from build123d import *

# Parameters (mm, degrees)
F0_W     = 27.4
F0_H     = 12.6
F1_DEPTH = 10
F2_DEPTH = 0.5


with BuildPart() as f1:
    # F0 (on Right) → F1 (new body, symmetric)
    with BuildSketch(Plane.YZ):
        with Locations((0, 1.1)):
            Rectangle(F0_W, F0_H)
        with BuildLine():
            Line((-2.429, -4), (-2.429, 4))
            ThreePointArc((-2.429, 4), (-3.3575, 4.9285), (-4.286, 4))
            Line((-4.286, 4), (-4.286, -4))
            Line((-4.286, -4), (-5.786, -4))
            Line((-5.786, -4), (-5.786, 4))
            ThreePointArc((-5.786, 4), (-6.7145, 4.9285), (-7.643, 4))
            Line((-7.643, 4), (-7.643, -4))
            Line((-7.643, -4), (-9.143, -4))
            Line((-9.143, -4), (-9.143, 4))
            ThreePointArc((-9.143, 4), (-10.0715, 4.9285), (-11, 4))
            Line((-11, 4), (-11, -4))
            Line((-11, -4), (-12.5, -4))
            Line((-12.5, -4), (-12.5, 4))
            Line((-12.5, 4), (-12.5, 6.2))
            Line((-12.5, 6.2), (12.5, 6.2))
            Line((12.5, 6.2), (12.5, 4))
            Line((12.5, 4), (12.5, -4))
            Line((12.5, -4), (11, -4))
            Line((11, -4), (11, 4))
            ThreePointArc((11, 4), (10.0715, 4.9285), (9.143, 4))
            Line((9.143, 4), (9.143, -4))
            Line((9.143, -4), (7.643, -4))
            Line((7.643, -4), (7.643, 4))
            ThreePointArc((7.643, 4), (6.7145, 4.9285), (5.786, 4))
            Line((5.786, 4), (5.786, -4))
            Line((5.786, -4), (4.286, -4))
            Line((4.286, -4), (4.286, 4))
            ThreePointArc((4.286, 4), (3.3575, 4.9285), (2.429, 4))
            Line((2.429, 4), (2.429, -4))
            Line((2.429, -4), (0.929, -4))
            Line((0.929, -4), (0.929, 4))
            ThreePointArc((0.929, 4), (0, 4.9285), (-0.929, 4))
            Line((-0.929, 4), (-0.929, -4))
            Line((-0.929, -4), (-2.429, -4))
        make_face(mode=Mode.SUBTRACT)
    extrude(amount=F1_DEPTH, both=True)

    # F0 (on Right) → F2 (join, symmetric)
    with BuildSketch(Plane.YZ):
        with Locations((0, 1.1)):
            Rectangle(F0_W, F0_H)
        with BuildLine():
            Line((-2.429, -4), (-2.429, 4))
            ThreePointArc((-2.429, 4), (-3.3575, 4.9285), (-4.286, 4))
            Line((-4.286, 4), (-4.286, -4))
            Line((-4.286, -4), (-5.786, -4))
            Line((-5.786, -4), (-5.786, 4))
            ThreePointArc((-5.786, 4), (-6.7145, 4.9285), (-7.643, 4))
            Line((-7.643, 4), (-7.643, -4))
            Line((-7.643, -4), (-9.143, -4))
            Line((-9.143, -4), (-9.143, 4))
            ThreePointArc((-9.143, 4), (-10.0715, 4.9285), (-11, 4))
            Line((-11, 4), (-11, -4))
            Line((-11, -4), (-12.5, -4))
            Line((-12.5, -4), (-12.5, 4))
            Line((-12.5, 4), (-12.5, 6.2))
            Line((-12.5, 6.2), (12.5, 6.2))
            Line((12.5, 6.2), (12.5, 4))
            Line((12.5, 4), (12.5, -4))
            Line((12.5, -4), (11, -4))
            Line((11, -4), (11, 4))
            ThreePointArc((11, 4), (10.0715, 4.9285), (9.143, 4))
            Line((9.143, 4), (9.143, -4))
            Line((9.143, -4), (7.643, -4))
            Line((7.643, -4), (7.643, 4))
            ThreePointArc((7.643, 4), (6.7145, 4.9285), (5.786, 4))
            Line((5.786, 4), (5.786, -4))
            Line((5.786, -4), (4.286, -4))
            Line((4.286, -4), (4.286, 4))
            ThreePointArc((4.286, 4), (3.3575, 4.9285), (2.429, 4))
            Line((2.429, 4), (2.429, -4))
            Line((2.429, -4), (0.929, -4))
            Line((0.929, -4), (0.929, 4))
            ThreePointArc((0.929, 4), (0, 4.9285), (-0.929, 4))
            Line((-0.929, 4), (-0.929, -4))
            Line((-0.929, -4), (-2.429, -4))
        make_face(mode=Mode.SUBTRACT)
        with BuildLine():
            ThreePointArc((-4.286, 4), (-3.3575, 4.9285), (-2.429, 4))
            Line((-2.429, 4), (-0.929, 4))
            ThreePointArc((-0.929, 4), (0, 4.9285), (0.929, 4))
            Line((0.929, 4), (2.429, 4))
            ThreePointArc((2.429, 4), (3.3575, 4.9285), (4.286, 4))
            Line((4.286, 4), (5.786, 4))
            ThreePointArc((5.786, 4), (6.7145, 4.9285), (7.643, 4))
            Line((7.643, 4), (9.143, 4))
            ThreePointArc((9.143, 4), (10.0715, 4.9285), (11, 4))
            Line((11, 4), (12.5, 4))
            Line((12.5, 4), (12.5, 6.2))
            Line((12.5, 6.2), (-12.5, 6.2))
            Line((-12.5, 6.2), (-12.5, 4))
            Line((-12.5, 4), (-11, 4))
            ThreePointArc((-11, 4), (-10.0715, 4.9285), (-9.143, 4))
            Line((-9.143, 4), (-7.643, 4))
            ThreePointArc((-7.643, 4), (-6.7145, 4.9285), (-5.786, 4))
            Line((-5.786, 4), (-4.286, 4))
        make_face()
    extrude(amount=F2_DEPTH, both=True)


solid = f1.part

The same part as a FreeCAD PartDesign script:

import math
import FreeCAD as App
import Part
import Sketcher

V = App.Vector

doc = App.newDocument("Part")
params = doc.addObject("Spreadsheet::Sheet", "Params")
for row, (alias, value) in enumerate([
    ("sketch1_width", "25 mm"),
    ("sketch1_height", "8 mm"),
    ("sketch1_width2", "27.4 mm"),
    ("sketch1_width3", "1.5 mm"),
    ("sketch1_height2", "12.6 mm"),
    ("pad1_length", "20 mm"),
    ("sketch2_height", "8 mm"),
    ("sketch2_width", "27.4 mm"),
    ("sketch2_width2", "1.5 mm"),
    ("sketch2_height2", "12.6 mm"),
    ("pad2_length", "1 mm"),
], start=1):
    params.set(f"A{row}", alias)
    params.set(f"B{row}", "=" + value)
    params.setAlias(f"B{row}", alias)

body = doc.addObject("PartDesign::Body", "Body")

sketch1 = body.newObject("Sketcher::SketchObject", "Sketch")
sketch1.AttachmentSupport = (doc.getObject("YZ_Plane"), [""])
sketch1.MapMode = "FlatFace"
sketch1.addGeometry([
    Part.LineSegment(V(-13.7, 7.4, 0), V(-13.7, -5.2, 0)),
    Part.LineSegment(V(-13.7, -5.2, 0), V(13.7, -5.2, 0)),
    Part.LineSegment(V(13.7, -5.2, 0), V(13.7, 7.4, 0)),
    Part.LineSegment(V(13.7, 7.4, 0), V(-13.7, 7.4, 0)),
    Part.LineSegment(V(-0.9, -4, 0), V(-2.4, -4, 0)),
    Part.LineSegment(V(-2.4, -4, 0), V(-2.4, 4, 0)),
    Part.ArcOfCircle(Part.Circle(V(-3.4, 4, 0), V(0, 0, 1), 0.9), math.radians(0), math.radians(180)),
    Part.LineSegment(V(-4.3, 4, 0), V(-4.3, -4, 0)),
    Part.LineSegment(V(-4.3, -4, 0), V(-5.8, -4, 0)),
    Part.LineSegment(V(-5.8, -4, 0), V(-5.8, 4, 0)),
    Part.ArcOfCircle(Part.Circle(V(-6.7, 4, 0), V(0, 0, 1), 0.9), math.radians(0), math.radians(180)),
    Part.LineSegment(V(-7.6, 4, 0), V(-7.6, -4, 0)),
    Part.LineSegment(V(-7.6, -4, 0), V(-9.1, -4, 0)),
    Part.LineSegment(V(-9.1, -4, 0), V(-9.1, 4, 0)),
    Part.ArcOfCircle(Part.Circle(V(-10.1, 4, 0), V(0, 0, 1), 0.9), math.radians(0), math.radians(180)),
    Part.LineSegment(V(-11, 4, 0), V(-11, -4, 0)),
    Part.LineSegment(V(-11, -4, 0), V(-12.5, -4, 0)),
    Part.LineSegment(V(-12.5, -4, 0), V(-12.5, 6.2, 0)),
    Part.LineSegment(V(-12.5, 6.2, 0), V(12.5, 6.2, 0)),
    Part.LineSegment(V(12.5, 6.2, 0), V(12.5, -4, 0)),
    Part.LineSegment(V(12.5, -4, 0), V(11, -4, 0)),
    Part.LineSegment(V(11, -4, 0), V(11, 4, 0)),
    Part.ArcOfCircle(Part.Circle(V(10.1, 4, 0), V(0, 0, 1), 0.9), math.radians(0), math.radians(180)),
    Part.LineSegment(V(9.1, 4, 0), V(9.1, -4, 0)),
    Part.LineSegment(V(9.1, -4, 0), V(7.6, -4, 0)),
    Part.LineSegment(V(7.6, -4, 0), V(7.6, 4, 0)),
    Part.ArcOfCircle(Part.Circle(V(6.7, 4, 0), V(0, 0, 1), 0.9), math.radians(0), math.radians(180)),
    Part.LineSegment(V(5.8, 4, 0), V(5.8, -4, 0)),
    Part.LineSegment(V(5.8, -4, 0), V(4.3, -4, 0)),
    Part.LineSegment(V(4.3, -4, 0), V(4.3, 4, 0)),
    Part.ArcOfCircle(Part.Circle(V(3.4, 4, 0), V(0, 0, 1), 0.9), math.radians(0), math.radians(180)),
    Part.LineSegment(V(2.4, 4, 0), V(2.4, -4, 0)),
    Part.LineSegment(V(2.4, -4, 0), V(0.9, -4, 0)),
    Part.LineSegment(V(0.9, -4, 0), V(0.9, 4, 0)),
    Part.ArcOfCircle(Part.Circle(V(0, 4, 0), V(0, 0, 1), 0.9), math.radians(0), math.radians(180)),
    Part.LineSegment(V(-0.9, 4, 0), V(-0.9, -4, 0)),
], False)
sketch1.addConstraint([
    Sketcher.Constraint("Coincident", 0, 2, 1, 1),
    Sketcher.Constraint("Coincident", 1, 2, 2, 1),
    Sketcher.Constraint("Coincident", 2, 2, 3, 1),
    Sketcher.Constraint("Coincident", 3, 2, 0, 1),
    Sketcher.Constraint("Coincident", 4, 2, 5, 1),
    Sketcher.Constraint("Tangent", 5, 2, 6, 1),
    Sketcher.Constraint("Tangent", 6, 2, 7, 1),
    Sketcher.Constraint("Coincident", 7, 2, 8, 1),
    Sketcher.Constraint("Coincident", 8, 2, 9, 1),
    Sketcher.Constraint("Tangent", 9, 2, 10, 1),
    Sketcher.Constraint("Tangent", 10, 2, 11, 1),
    Sketcher.Constraint("Coincident", 11, 2, 12, 1),
    Sketcher.Constraint("Coincident", 12, 2, 13, 1),
    Sketcher.Constraint("Tangent", 13, 2, 14, 1),
    Sketcher.Constraint("Tangent", 14, 2, 15, 1),
    Sketcher.Constraint("Coincident", 15, 2, 16, 1),
    Sketcher.Constraint("Coincident", 16, 2, 17, 1),
    Sketcher.Constraint("Coincident", 17, 2, 18, 1),
    Sketcher.Constraint("Coincident", 18, 2, 19, 1),
    Sketcher.Constraint("Coincident", 19, 2, 20, 1),
    Sketcher.Constraint("Coincident", 20, 2, 21, 1),
    Sketcher.Constraint("Tangent", 21, 2, 22, 1),
    Sketcher.Constraint("Tangent", 22, 2, 23, 1),
    Sketcher.Constraint("Coincident", 23, 2, 24, 1),
    Sketcher.Constraint("Coincident", 24, 2, 25, 1),
    Sketcher.Constraint("Tangent", 25, 2, 26, 1),
    Sketcher.Constraint("Tangent", 26, 2, 27, 1),
    Sketcher.Constraint("Coincident", 27, 2, 28, 1),
    Sketcher.Constraint("Coincident", 28, 2, 29, 1),
    Sketcher.Constraint("Tangent", 29, 2, 30, 1),
    Sketcher.Constraint("Tangent", 30, 2, 31, 1),
    Sketcher.Constraint("Coincident", 31, 2, 32, 1),
    Sketcher.Constraint("Coincident", 32, 2, 33, 1),
    Sketcher.Constraint("Coincident", 33, 2, 34, 1),
    Sketcher.Constraint("Coincident", 34, 2, 35, 1),
    Sketcher.Constraint("Coincident", 35, 2, 4, 1),
    Sketcher.Constraint("Vertical", 0),
    Sketcher.Constraint("Horizontal", 1),
    Sketcher.Constraint("Vertical", 2),
    Sketcher.Constraint("Horizontal", 3),
    Sketcher.Constraint("Horizontal", 4),
    Sketcher.Constraint("Vertical", 5),
    Sketcher.Constraint("Vertical", 7),
    Sketcher.Constraint("Horizontal", 8),
    Sketcher.Constraint("Vertical", 9),
    Sketcher.Constraint("Vertical", 11),
    Sketcher.Constraint("Horizontal", 12),
    Sketcher.Constraint("Vertical", 13),
    Sketcher.Constraint("Vertical", 15),
    Sketcher.Constraint("Horizontal", 16),
    Sketcher.Constraint("Vertical", 17),
    Sketcher.Constraint("Horizontal", 18),
    Sketcher.Constraint("Vertical", 19),
    Sketcher.Constraint("Horizontal", 20),
    Sketcher.Constraint("Vertical", 21),
    Sketcher.Constraint("Vertical", 23),
    Sketcher.Constraint("Horizontal", 24),
    Sketcher.Constraint("Vertical", 25),
    Sketcher.Constraint("Vertical", 27),
    Sketcher.Constraint("Horizontal", 28),
    Sketcher.Constraint("Vertical", 29),
    Sketcher.Constraint("Vertical", 31),
    Sketcher.Constraint("Horizontal", 32),
    Sketcher.Constraint("Vertical", 33),
    Sketcher.Constraint("Vertical", 35),
    Sketcher.Constraint("Equal", 6, 10),
    Sketcher.Constraint("Equal", 10, 14),
    Sketcher.Constraint("Equal", 14, 22),
    Sketcher.Constraint("Equal", 22, 26),
    Sketcher.Constraint("Equal", 26, 30),
    Sketcher.Constraint("Symmetric", 14, 2, 20, 2, -1, 1),
    Sketcher.Constraint("Symmetric", 10, 2, 24, 2, -1, 1),
    Sketcher.Constraint("Symmetric", 6, 2, 28, 2, -1, 1),
    Sketcher.Constraint("Symmetric", 32, 2, 34, 2, -1, 1),
    Sketcher.Constraint("Symmetric", 16, 2, 19, 2, -2),
    Sketcher.Constraint("Horizontal", 6, 3, 10, 3),
    Sketcher.Constraint("Horizontal", 10, 3, 14, 3),
    Sketcher.Constraint("Horizontal", 14, 3, 22, 3),
    Sketcher.Constraint("Horizontal", 22, 3, 26, 3),
    Sketcher.Constraint("Horizontal", 26, 3, 30, 3),
    Sketcher.Constraint("Horizontal", 4, 2, 7, 2),
    Sketcher.Constraint("Horizontal", 8, 2, 11, 2),
    Sketcher.Constraint("Horizontal", 12, 2, 15, 2),
    Sketcher.Constraint("Horizontal", 28, 2, 31, 2),
    Sketcher.Constraint("Horizontal", 30, 2, 33, 2),
    Sketcher.Constraint("Equal", 4, 8),
    Sketcher.Constraint("Equal", 8, 12),
    Sketcher.Constraint("Equal", 12, 16),
    Sketcher.Constraint("DistanceX", 18, 1, 18, 2, 25.0),
    Sketcher.Constraint("DistanceY", 5, 1, 5, 2, 8.0),
    Sketcher.Constraint("DistanceX", 1, 1, 1, 2, 27.4),
    Sketcher.Constraint("DistanceX", 4, 2, 4, 1, 1.5),
    Sketcher.Constraint("DistanceY", 0, 2, 0, 1, 12.6),
    Sketcher.Constraint("DistanceY", 17, 1, 17, 2, 10.2),
    Sketcher.Constraint("Radius", 34, 0.929),
    Sketcher.Constraint("DistanceX", 0, 2, -1, 1, 13.7),
    Sketcher.Constraint("DistanceY", 0, 2, -1, 1, 5.2),
    Sketcher.Constraint("DistanceY", -1, 1, 34, 3, 3.9995),
])
sketch1.setExpression("Constraints[88]", "Params.sketch1_width")
sketch1.setExpression("Constraints[89]", "Params.sketch1_height")
sketch1.setExpression("Constraints[90]", "Params.sketch1_width2")
sketch1.setExpression("Constraints[91]", "Params.sketch1_width3")
sketch1.setExpression("Constraints[92]", "Params.sketch1_height2")
pad1 = body.newObject("PartDesign::Pad", "Pad")
pad1.Profile = sketch1
pad1.setExpression("Length", "Params.pad1_length")
pad1.Midplane = True

sketch2 = body.newObject("Sketcher::SketchObject", "Sketch001")
sketch2.AttachmentSupport = (doc.getObject("YZ_Plane"), [""])
sketch2.MapMode = "FlatFace"
sketch2.addGeometry([
    Part.LineSegment(V(-13.7, 7.4, 0), V(-13.7, -5.2, 0)),
    Part.LineSegment(V(-13.7, -5.2, 0), V(13.7, -5.2, 0)),
    Part.LineSegment(V(13.7, -5.2, 0), V(13.7, 7.4, 0)),
    Part.LineSegment(V(13.7, 7.4, 0), V(-13.7, 7.4, 0)),
    Part.LineSegment(V(-0.9, -4, 0), V(-2.4, -4, 0)),
    Part.LineSegment(V(-2.4, -4, 0), V(-2.4, 4, 0)),
    Part.LineSegment(V(-2.4, 4, 0), V(-0.9, 4, 0)),
    Part.LineSegment(V(-0.9, 4, 0), V(-0.9, -4, 0)),
    Part.LineSegment(V(0.9, -4, 0), V(0.9, 4, 0)),
    Part.LineSegment(V(0.9, 4, 0), V(2.4, 4, 0)),
    Part.LineSegment(V(2.4, 4, 0), V(2.4, -4, 0)),
    Part.LineSegment(V(2.4, -4, 0), V(0.9, -4, 0)),
    Part.LineSegment(V(4.3, -4, 0), V(4.3, 4, 0)),
    Part.LineSegment(V(4.3, 4, 0), V(5.8, 4, 0)),
    Part.LineSegment(V(5.8, 4, 0), V(5.8, -4, 0)),
    Part.LineSegment(V(5.8, -4, 0), V(4.3, -4, 0)),
    Part.LineSegment(V(7.6, -4, 0), V(7.6, 4, 0)),
    Part.LineSegment(V(7.6, 4, 0), V(9.1, 4, 0)),
    Part.LineSegment(V(9.1, 4, 0), V(9.1, -4, 0)),
    Part.LineSegment(V(9.1, -4, 0), V(7.6, -4, 0)),
    Part.LineSegment(V(11, -4, 0), V(11, 4, 0)),
    Part.LineSegment(V(11, 4, 0), V(12.5, 4, 0)),
    Part.LineSegment(V(12.5, 4, 0), V(12.5, -4, 0)),
    Part.LineSegment(V(12.5, -4, 0), V(11, -4, 0)),
    Part.LineSegment(V(-12.5, -4, 0), V(-12.5, 4, 0)),
    Part.LineSegment(V(-12.5, 4, 0), V(-11, 4, 0)),
    Part.LineSegment(V(-11, 4, 0), V(-11, -4, 0)),
    Part.LineSegment(V(-11, -4, 0), V(-12.5, -4, 0)),
    Part.LineSegment(V(-9.1, -4, 0), V(-9.1, 4, 0)),
    Part.LineSegment(V(-9.1, 4, 0), V(-7.6, 4, 0)),
    Part.LineSegment(V(-7.6, 4, 0), V(-7.6, -4, 0)),
    Part.LineSegment(V(-7.6, -4, 0), V(-9.1, -4, 0)),
    Part.LineSegment(V(-5.8, -4, 0), V(-5.8, 4, 0)),
    Part.LineSegment(V(-5.8, 4, 0), V(-4.3, 4, 0)),
    Part.LineSegment(V(-4.3, 4, 0), V(-4.3, -4, 0)),
    Part.LineSegment(V(-4.3, -4, 0), V(-5.8, -4, 0)),
], False)
sketch2.addConstraint([
    Sketcher.Constraint("Coincident", 0, 2, 1, 1),
    Sketcher.Constraint("Coincident", 1, 2, 2, 1),
    Sketcher.Constraint("Coincident", 2, 2, 3, 1),
    Sketcher.Constraint("Coincident", 3, 2, 0, 1),
    Sketcher.Constraint("Coincident", 4, 2, 5, 1),
    Sketcher.Constraint("Coincident", 5, 2, 6, 1),
    Sketcher.Constraint("Coincident", 6, 2, 7, 1),
    Sketcher.Constraint("Coincident", 7, 2, 4, 1),
    Sketcher.Constraint("Coincident", 8, 2, 9, 1),
    Sketcher.Constraint("Coincident", 9, 2, 10, 1),
    Sketcher.Constraint("Coincident", 10, 2, 11, 1),
    Sketcher.Constraint("Coincident", 11, 2, 8, 1),
    Sketcher.Constraint("Coincident", 12, 2, 13, 1),
    Sketcher.Constraint("Coincident", 13, 2, 14, 1),
    Sketcher.Constraint("Coincident", 14, 2, 15, 1),
    Sketcher.Constraint("Coincident", 15, 2, 12, 1),
    Sketcher.Constraint("Coincident", 16, 2, 17, 1),
    Sketcher.Constraint("Coincident", 17, 2, 18, 1),
    Sketcher.Constraint("Coincident", 18, 2, 19, 1),
    Sketcher.Constraint("Coincident", 19, 2, 16, 1),
    Sketcher.Constraint("Coincident", 20, 2, 21, 1),
    Sketcher.Constraint("Coincident", 21, 2, 22, 1),
    Sketcher.Constraint("Coincident", 22, 2, 23, 1),
    Sketcher.Constraint("Coincident", 23, 2, 20, 1),
    Sketcher.Constraint("Coincident", 24, 2, 25, 1),
    Sketcher.Constraint("Coincident", 25, 2, 26, 1),
    Sketcher.Constraint("Coincident", 26, 2, 27, 1),
    Sketcher.Constraint("Coincident", 27, 2, 24, 1),
    Sketcher.Constraint("Coincident", 28, 2, 29, 1),
    Sketcher.Constraint("Coincident", 29, 2, 30, 1),
    Sketcher.Constraint("Coincident", 30, 2, 31, 1),
    Sketcher.Constraint("Coincident", 31, 2, 28, 1),
    Sketcher.Constraint("Coincident", 32, 2, 33, 1),
    Sketcher.Constraint("Coincident", 33, 2, 34, 1),
    Sketcher.Constraint("Coincident", 34, 2, 35, 1),
    Sketcher.Constraint("Coincident", 35, 2, 32, 1),
    Sketcher.Constraint("Vertical", 0),
    Sketcher.Constraint("Horizontal", 1),
    Sketcher.Constraint("Vertical", 2),
    Sketcher.Constraint("Horizontal", 3),
    Sketcher.Constraint("Horizontal", 4),
    Sketcher.Constraint("Vertical", 5),
    Sketcher.Constraint("Horizontal", 6),
    Sketcher.Constraint("Vertical", 7),
    Sketcher.Constraint("Vertical", 8),
    Sketcher.Constraint("Horizontal", 9),
    Sketcher.Constraint("Vertical", 10),
    Sketcher.Constraint("Horizontal", 11),
    Sketcher.Constraint("Vertical", 12),
    Sketcher.Constraint("Horizontal", 13),
    Sketcher.Constraint("Vertical", 14),
    Sketcher.Constraint("Horizontal", 15),
    Sketcher.Constraint("Vertical", 16),
    Sketcher.Constraint("Horizontal", 17),
    Sketcher.Constraint("Vertical", 18),
    Sketcher.Constraint("Horizontal", 19),
    Sketcher.Constraint("Vertical", 20),
    Sketcher.Constraint("Horizontal", 21),
    Sketcher.Constraint("Vertical", 22),
    Sketcher.Constraint("Horizontal", 23),
    Sketcher.Constraint("Vertical", 24),
    Sketcher.Constraint("Horizontal", 25),
    Sketcher.Constraint("Vertical", 26),
    Sketcher.Constraint("Horizontal", 27),
    Sketcher.Constraint("Vertical", 28),
    Sketcher.Constraint("Horizontal", 29),
    Sketcher.Constraint("Vertical", 30),
    Sketcher.Constraint("Horizontal", 31),
    Sketcher.Constraint("Vertical", 32),
    Sketcher.Constraint("Horizontal", 33),
    Sketcher.Constraint("Vertical", 34),
    Sketcher.Constraint("Horizontal", 35),
    Sketcher.Constraint("Symmetric", 7, 2, 8, 2, -1, 1),
    Sketcher.Constraint("Symmetric", 5, 2, 10, 2, -1, 1),
    Sketcher.Constraint("Symmetric", 22, 2, 24, 2, -1, 1),
    Sketcher.Constraint("Symmetric", 20, 2, 26, 2, -1, 1),
    Sketcher.Constraint("Symmetric", 18, 2, 28, 2, -1, 1),
    Sketcher.Constraint("Symmetric", 16, 2, 30, 2, -1, 1),
    Sketcher.Constraint("Symmetric", 14, 2, 32, 2, -1, 1),
    Sketcher.Constraint("Symmetric", 12, 2, 34, 2, -1, 1),
    Sketcher.Constraint("Horizontal", 6, 2, 8, 2),
    Sketcher.Constraint("Horizontal", 9, 2, 12, 2),
    Sketcher.Constraint("Horizontal", 11, 2, 14, 2),
    Sketcher.Constraint("Horizontal", 13, 2, 16, 2),
    Sketcher.Constraint("Horizontal", 15, 2, 18, 2),
    Sketcher.Constraint("Horizontal", 17, 2, 20, 2),
    Sketcher.Constraint("Horizontal", 19, 2, 22, 2),
    Sketcher.Constraint("Equal", 11, 13),
    Sketcher.Constraint("Equal", 15, 17),
    Sketcher.Constraint("Equal", 19, 21),
    Sketcher.Constraint("DistanceY", 5, 1, 5, 2, 8.0),
    Sketcher.Constraint("DistanceX", 1, 1, 1, 2, 27.4),
    Sketcher.Constraint("DistanceX", 4, 2, 4, 1, 1.5),
    Sketcher.Constraint("DistanceY", 0, 2, 0, 1, 12.6),
    Sketcher.Constraint("DistanceX", -1, 1, 20, 2, 11.0),
    Sketcher.Constraint("DistanceX", 0, 2, -1, 1, 13.7),
    Sketcher.Constraint("DistanceY", 0, 2, -1, 1, 5.2),
    Sketcher.Constraint("DistanceX", 4, 2, -1, 1, 2.429),
    Sketcher.Constraint("DistanceX", -1, 1, 12, 2, 4.286),
    Sketcher.Constraint("DistanceX", -1, 1, 16, 2, 7.643),
])
sketch2.setExpression("Constraints[90]", "Params.sketch2_height")
sketch2.setExpression("Constraints[91]", "Params.sketch2_width")
sketch2.setExpression("Constraints[92]", "Params.sketch2_width2")
sketch2.setExpression("Constraints[93]", "Params.sketch2_height2")
pad2 = body.newObject("PartDesign::Pad", "Pad001")
pad2.Profile = sketch2
pad2.setExpression("Length", "Params.pad2_length")
pad2.Midplane = True

doc.recompute()
